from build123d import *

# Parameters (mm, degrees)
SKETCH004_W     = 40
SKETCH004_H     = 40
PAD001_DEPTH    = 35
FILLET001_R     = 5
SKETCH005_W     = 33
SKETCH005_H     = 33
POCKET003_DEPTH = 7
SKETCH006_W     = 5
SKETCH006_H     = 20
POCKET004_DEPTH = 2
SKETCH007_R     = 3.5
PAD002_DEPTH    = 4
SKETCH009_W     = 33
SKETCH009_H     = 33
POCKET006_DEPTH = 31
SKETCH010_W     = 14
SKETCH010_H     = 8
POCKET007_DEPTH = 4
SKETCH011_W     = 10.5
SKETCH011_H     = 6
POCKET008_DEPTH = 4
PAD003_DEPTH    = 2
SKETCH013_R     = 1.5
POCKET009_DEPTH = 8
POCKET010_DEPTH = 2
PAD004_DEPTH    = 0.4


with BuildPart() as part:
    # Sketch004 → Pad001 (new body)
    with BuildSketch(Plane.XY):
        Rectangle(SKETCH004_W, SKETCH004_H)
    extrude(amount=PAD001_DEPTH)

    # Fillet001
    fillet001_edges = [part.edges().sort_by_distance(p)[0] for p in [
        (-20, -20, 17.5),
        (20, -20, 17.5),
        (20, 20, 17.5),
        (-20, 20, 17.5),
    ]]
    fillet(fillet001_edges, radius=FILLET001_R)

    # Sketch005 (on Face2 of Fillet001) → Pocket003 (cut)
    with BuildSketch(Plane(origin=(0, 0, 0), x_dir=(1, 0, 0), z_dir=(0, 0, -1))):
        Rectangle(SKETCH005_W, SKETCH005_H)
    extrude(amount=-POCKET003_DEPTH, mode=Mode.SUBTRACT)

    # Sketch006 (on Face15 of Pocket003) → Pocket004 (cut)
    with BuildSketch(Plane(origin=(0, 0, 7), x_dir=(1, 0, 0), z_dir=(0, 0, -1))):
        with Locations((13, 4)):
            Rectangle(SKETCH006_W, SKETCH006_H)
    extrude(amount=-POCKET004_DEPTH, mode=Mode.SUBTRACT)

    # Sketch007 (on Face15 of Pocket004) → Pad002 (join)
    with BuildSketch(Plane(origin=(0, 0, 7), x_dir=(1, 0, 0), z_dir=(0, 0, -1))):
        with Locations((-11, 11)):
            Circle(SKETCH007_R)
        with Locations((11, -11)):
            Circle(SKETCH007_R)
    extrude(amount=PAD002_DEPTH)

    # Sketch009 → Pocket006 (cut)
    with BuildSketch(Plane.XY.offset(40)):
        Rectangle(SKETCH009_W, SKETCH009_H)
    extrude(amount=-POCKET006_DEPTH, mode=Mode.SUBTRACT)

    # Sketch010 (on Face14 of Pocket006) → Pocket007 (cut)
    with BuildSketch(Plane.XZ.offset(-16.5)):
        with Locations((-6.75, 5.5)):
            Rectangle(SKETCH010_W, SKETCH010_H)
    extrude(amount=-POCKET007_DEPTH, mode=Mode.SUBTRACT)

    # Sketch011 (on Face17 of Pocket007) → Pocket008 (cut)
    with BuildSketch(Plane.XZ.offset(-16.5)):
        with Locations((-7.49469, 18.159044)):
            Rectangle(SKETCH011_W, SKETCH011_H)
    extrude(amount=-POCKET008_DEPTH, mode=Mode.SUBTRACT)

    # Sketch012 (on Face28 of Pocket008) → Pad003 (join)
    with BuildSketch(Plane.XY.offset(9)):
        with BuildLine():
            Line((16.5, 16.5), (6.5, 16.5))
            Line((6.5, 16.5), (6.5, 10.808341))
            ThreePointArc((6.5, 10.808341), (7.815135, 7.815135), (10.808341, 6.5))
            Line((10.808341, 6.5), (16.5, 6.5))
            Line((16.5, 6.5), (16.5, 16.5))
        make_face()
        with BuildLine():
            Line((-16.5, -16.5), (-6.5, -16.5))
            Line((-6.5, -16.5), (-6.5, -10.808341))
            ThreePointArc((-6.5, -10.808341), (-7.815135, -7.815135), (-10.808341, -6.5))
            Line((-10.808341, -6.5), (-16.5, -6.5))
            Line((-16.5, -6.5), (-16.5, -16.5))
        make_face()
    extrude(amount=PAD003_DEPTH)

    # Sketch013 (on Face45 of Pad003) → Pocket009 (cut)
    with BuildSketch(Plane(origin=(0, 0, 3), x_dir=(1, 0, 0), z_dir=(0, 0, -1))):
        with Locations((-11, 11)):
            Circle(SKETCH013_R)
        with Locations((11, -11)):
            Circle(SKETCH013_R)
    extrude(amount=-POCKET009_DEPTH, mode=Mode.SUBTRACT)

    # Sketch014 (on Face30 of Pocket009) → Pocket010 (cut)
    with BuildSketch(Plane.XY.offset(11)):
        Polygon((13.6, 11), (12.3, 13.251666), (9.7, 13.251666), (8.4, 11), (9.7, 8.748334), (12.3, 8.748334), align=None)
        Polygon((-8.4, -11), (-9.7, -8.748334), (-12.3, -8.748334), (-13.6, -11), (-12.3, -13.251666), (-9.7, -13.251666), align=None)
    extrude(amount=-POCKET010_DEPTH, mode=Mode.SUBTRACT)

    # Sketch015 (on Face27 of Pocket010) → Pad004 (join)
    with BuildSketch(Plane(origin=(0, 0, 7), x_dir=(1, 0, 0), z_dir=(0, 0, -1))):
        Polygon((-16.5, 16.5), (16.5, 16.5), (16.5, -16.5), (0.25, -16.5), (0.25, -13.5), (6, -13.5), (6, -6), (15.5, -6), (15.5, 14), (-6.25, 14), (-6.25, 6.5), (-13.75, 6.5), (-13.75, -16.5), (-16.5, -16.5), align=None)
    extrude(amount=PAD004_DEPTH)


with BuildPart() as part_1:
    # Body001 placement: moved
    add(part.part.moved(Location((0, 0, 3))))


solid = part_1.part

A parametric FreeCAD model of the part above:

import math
import FreeCAD as App
import Part
import Sketcher
Q = App.Units.Quantity


def edges_at(feature, points):
    """Names of the edges that pass closest to the given points."""
    edges = feature.Shape.Edges
    near = lambda p: min(range(len(edges)), key=lambda i: edges[i].distToShape(Part.Vertex(*p))[0])
    return sorted({f"Edge{near(p) + 1}" for p in points})

doc = App.newDocument("Part")
body = doc.addObject("PartDesign::Body", "Body")

# Sketch on XY plane
sketch1 = body.newObject("Sketcher::SketchObject", "Sketch")
sketch1.AttachmentSupport = (doc.getObject("XY_Plane"), [""])
sketch1.MapMode = "FlatFace"
sketch1.addGeometry([
    Part.LineSegment(App.Vector(-20, 20, 0), App.Vector(-20, -20, 0)),
    Part.LineSegment(App.Vector(-20, -20, 0), App.Vector(20, -20, 0)),
    Part.LineSegment(App.Vector(20, -20, 0), App.Vector(20, 20, 0)),
    Part.LineSegment(App.Vector(20, 20, 0), App.Vector(-20, 20, 0)),
], False)
sketch1.addConstraint([
    Sketcher.Constraint("Coincident", 0, 2, 1, 1),
    Sketcher.Constraint("Coincident", 1, 2, 2, 1),
    Sketcher.Constraint("Coincident", 2, 2, 3, 1),
    Sketcher.Constraint("Coincident", 3, 2, 0, 1),
    Sketcher.Constraint("Vertical", 0),
    Sketcher.Constraint("Horizontal", 1),
    Sketcher.Constraint("Vertical", 2),
    Sketcher.Constraint("Horizontal", 3),
    Sketcher.Constraint("Symmetric", 0, 2, 2, 2, -1, 1),
    Sketcher.Constraint("Equal", 3, 0),
    Sketcher.Constraint("DistanceX", 1, 1, 1, 2, 40.0),
])
pad1 = body.newObject("PartDesign::Pad", "Pad")
pad1.Profile = sketch1
pad1.Length = 35
doc.recompute()

fillet = body.newObject("PartDesign::Fillet", "Fillet")
fillet.Base = (pad1, edges_at(pad1, [
    (-20, -20, 17.5),
    (20, -20, 17.5),
    (20, 20, 17.5),
    (-20, 20, 17.5),
]))
fillet.Radius = 5

# Sketch on XY plane
sketch2 = body.newObject("Sketcher::SketchObject", "Sketch001")
sketch2.AttachmentSupport = (doc.getObject("XY_Plane"), [""])
sketch2.MapMode = "FlatFace"
sketch2.addGeometry([
    Part.LineSegment(App.Vector(-16.5, -16.5, 0), App.Vector(-16.5, 16.5, 0)),
    Part.LineSegment(App.Vector(-16.5, 16.5, 0), App.Vector(16.5, 16.5, 0)),
    Part.LineSegment(App.Vector(16.5, 16.5, 0), App.Vector(16.5, -16.5, 0)),
    Part.LineSegment(App.Vector(16.5, -16.5, 0), App.Vector(-16.5, -16.5, 0)),
], False)
sketch2.addConstraint([
    Sketcher.Constraint("Coincident", 0, 2, 1, 1),
    Sketcher.Constraint("Coincident", 1, 2, 2, 1),
    Sketcher.Constraint("Coincident", 2, 2, 3, 1),
    Sketcher.Constraint("Coincident", 3, 2, 0, 1),
    Sketcher.Constraint("Vertical", 0),
    Sketcher.Constraint("Horizontal", 1),
    Sketcher.Constraint("Vertical", 2),
    Sketcher.Constraint("Horizontal", 3),
    Sketcher.Constraint("Symmetric", 0, 2, 2, 2, -1, 1),
    Sketcher.Constraint("Equal", 3, 0),
    Sketcher.Constraint("DistanceX", 1, 1, 1, 2, 33.0),
])
pocket1 = body.newObject("PartDesign::Pocket", "Pocket")
pocket1.Profile = sketch2
pocket1.Length = 7
pocket1.Reversed = True

# Sketch on XY plane
sketch3 = body.newObject("Sketcher::SketchObject", "Sketch002")
sketch3.AttachmentSupport = (doc.getObject("XY_Plane"), [""])
sketch3.MapMode = "FlatFace"
sketch3.AttachmentOffset = App.Placement(App.Vector(0, 0, 7), App.Rotation())
sketch3.addGeometry([
    Part.LineSegment(App.Vector(10.5, -14, 0), App.Vector(10.5, 6, 0)),
    Part.LineSegment(App.Vector(10.5, 6, 0), App.Vector(15.5, 6, 0)),
    Part.LineSegment(App.Vector(15.5, 6, 0), App.Vector(15.5, -14, 0)),
    Part.LineSegment(App.Vector(15.5, -14, 0), App.Vector(10.5, -14, 0)),
], False)
sketch3.addConstraint([
    Sketcher.Constraint("Coincident", 0, 2, 1, 1),
    Sketcher.Constraint("Coincident", 1, 2, 2, 1),
    Sketcher.Constraint("Coincident", 2, 2, 3, 1),
    Sketcher.Constraint("Coincident", 3, 2, 0, 1),
    Sketcher.Constraint("Vertical", 0),
    Sketcher.Constraint("Horizontal", 1),
    Sketcher.Constraint("Vertical", 2),
    Sketcher.Constraint("Horizontal", 3),
    Sketcher.Constraint("DistanceX", 1, 1, 1, 2, 5.0),
    Sketcher.Constraint("DistanceY", 0, 1, 0, 2, 20.0),
    Sketcher.Constraint("DistanceY", -1, 1, 0, 2, 6.0),
    Sketcher.Constraint("DistanceX", -1, 1, 0, 2, 10.5),
])
pocket2 = body.newObject("PartDesign::Pocket", "Pocket001")
pocket2.Profile = sketch3
pocket2.Length = 2
pocket2.Reversed = True

# Sketch on XY plane
sketch4 = body.newObject("Sketcher::SketchObject", "Sketch003")
sketch4.AttachmentSupport = (doc.getObject("XY_Plane"), [""])
sketch4.MapMode = "FlatFace"
sketch4.AttachmentOffset = App.Placement(App.Vector(0, 0, 7), App.Rotation())
sketch4.addGeometry([
    Part.Circle(App.Vector(-11, -11, 0), App.Vector(0, 0, 1), 3.5),
    Part.Circle(App.Vector(11, 11, 0), App.Vector(0, 0, 1), 3.5),
], False)
sketch4.addConstraint([
    Sketcher.Constraint("Equal", 0, 1),
    Sketcher.Constraint("Symmetric", 0, 3, 1, 3, -1, 1),
    Sketcher.Constraint("Diameter", 0, 7.0),
    Sketcher.Constraint("DistanceX", 0, 3, -1, 1, 11.0),
    Sketcher.Constraint("DistanceY", 0, 3, -1, 1, 11.0),
])
pad2 = body.newObject("PartDesign::Pad", "Pad001")
pad2.Profile = sketch4
pad2.Length = 4
pad2.Reversed = True

# Sketch on XY plane
sketch5 = body.newObject("Sketcher::SketchObject", "Sketch004")
sketch5.AttachmentSupport = (doc.getObject("XY_Plane"), [""])
sketch5.MapMode = "FlatFace"
sketch5.AttachmentOffset = App.Placement(App.Vector(0, 0, 40), App.Rotation())
sketch5.addGeometry([
    Part.LineSegment(App.Vector(-16.5, 16.5, 0), App.Vector(-16.5, -16.5, 0)),
    Part.LineSegment(App.Vector(-16.5, -16.5, 0), App.Vector(16.5, -16.5, 0)),
    Part.LineSegment(App.Vector(16.5, -16.5, 0), App.Vector(16.5, 16.5, 0)),
    Part.LineSegment(App.Vector(16.5, 16.5, 0), App.Vector(-16.5, 16.5, 0)),
], False)
sketch5.addConstraint([
    Sketcher.Constraint("Coincident", 0, 2, 1, 1),
    Sketcher.Constraint("Coincident", 1, 2, 2, 1),
    Sketcher.Constraint("Coincident", 2, 2, 3, 1),
    Sketcher.Constraint("Coincident", 3, 2, 0, 1),
    Sketcher.Constraint("Vertical", 0),
    Sketcher.Constraint("Horizontal", 1),
    Sketcher.Constraint("Vertical", 2),
    Sketcher.Constraint("Horizontal", 3),
    Sketcher.Constraint("Symmetric", 0, 2, 2, 2, -1, 1),
    Sketcher.Constraint("Equal", 3, 0),
    Sketcher.Constraint("DistanceX", 1, 1, 1, 2, 33.0),
])
pocket3 = body.newObject("PartDesign::Pocket", "Pocket002")
pocket3.Profile = sketch5
pocket3.Length = 31

# Sketch on XZ plane
sketch6 = body.newObject("Sketcher::SketchObject", "Sketch005")
sketch6.AttachmentSupport = (doc.getObject("XZ_Plane"), [""])
sketch6.MapMode = "FlatFace"
sketch6.AttachmentOffset = App.Placement(App.Vector(0, 0, -16.5), App.Rotation())
sketch6.addGeometry([
    Part.LineSegment(App.Vector(-13.75, 9.5, 0), App.Vector(-13.75, 1.5, 0)),
    Part.LineSegment(App.Vector(-13.75, 1.5, 0), App.Vector(0.25, 1.5, 0)),
    Part.LineSegment(App.Vector(0.25, 1.5, 0), App.Vector(0.25, 9.5, 0)),
    Part.LineSegment(App.Vector(0.25, 9.5, 0), App.Vector(-13.75, 9.5, 0)),
], False)
sketch6.addConstraint([
    Sketcher.Constraint("Coincident", 0, 2, 1, 1),
    Sketcher.Constraint("Coincident", 1, 2, 2, 1),
    Sketcher.Constraint("Coincident", 2, 2, 3, 1),
    Sketcher.Constraint("Coincident", 3, 2, 0, 1),
    Sketcher.Constraint("Vertical", 0),
    Sketcher.Constraint("Horizontal", 1),
    Sketcher.Constraint("Vertical", 2),
    Sketcher.Constraint("Horizontal", 3),
    Sketcher.Constraint("DistanceX", 1, 1, 1, 2, 14.0),
    Sketcher.Constraint("DistanceY", 0, 2, 0, 1, 8.0),
    Sketcher.Constraint("DistanceY", -1, 1, 0, 2, 1.5),
    Sketcher.Constraint("DistanceX", 0, 2, -1, 1, 13.75),
])
pocket4 = body.newObject("PartDesign::Pocket", "Pocket003")
pocket4.Profile = sketch6
pocket4.Length = 4

# Sketch on XZ plane
sketch7 = body.newObject("Sketcher::SketchObject", "Sketch006")
sketch7.AttachmentSupport = (doc.getObject("XZ_Plane"), [""])
sketch7.MapMode = "FlatFace"
sketch7.AttachmentOffset = App.Placement(App.Vector(0, 0, -16.5), App.Rotation())
sketch7.addGeometry([
    Part.LineSegment(App.Vector(-12.74469, 21.159044, 0), App.Vector(-12.74469, 15.159044, 0)),
    Part.LineSegment(App.Vector(-12.74469, 15.159044, 0), App.Vector(-2.24469, 15.159044, 0)),
    Part.LineSegment(App.Vector(-2.24469, 15.159044, 0), App.Vector(-2.24469, 21.159044, 0)),
    Part.LineSegment(App.Vector(-2.24469, 21.159044, 0), App.Vector(-12.74469, 21.159044, 0)),
], False)
sketch7.addConstraint([
    Sketcher.Constraint("Coincident", 0, 2, 1, 1),
    Sketcher.Constraint("Coincident", 1, 2, 2, 1),
    Sketcher.Constraint("Coincident", 2, 2, 3, 1),
    Sketcher.Constraint("Coincident", 3, 2, 0, 1),
    Sketcher.Constraint("Vertical", 0),
    Sketcher.Constraint("Horizontal", 1),
    Sketcher.Constraint("Vertical", 2),
    Sketcher.Constraint("Horizontal", 3),
    Sketcher.Constraint("DistanceY", 0, 2, 0, 1, 6.0),
    Sketcher.Constraint("DistanceX", 1, 1, 1, 2, 10.5),
    Sketcher.Constraint("DistanceX", 0, 2, -1, 1, 12.74469),
    Sketcher.Constraint("DistanceY", -1, 1, 0, 2, 15.159044),
])
pocket5 = body.newObject("PartDesign::Pocket", "Pocket004")
pocket5.Profile = sketch7
pocket5.Length = 4

# Sketch on XY plane
sketch8 = body.newObject("Sketcher::SketchObject", "Sketch007")
sketch8.AttachmentSupport = (doc.getObject("XY_Plane"), [""])
sketch8.MapMode = "FlatFace"
sketch8.AttachmentOffset = App.Placement(App.Vector(0, 0, 9), App.Rotation())
sketch8.addGeometry([
    Part.LineSegment(App.Vector(16.5, 16.5, 0), App.Vector(6.5, 16.5, 0)),  # 0
    Part.LineSegment(App.Vector(6.5, 16.5, 0), App.Vector(6.5, 10.808341, 0)),  # 1
    Part.ArcOfCircle(Part.Circle(App.Vector(11.000001, 11.000001, 0), App.Vector(0, 0, 1), 4.504081), math.radians(-177.561185), math.radians(-92.438815)),  # 2
    Part.LineSegment(App.Vector(10.808341, 6.5, 0), App.Vector(16.5, 6.5, 0)),  # 3
    Part.LineSegment(App.Vector(16.5, 6.5, 0), App.Vector(16.5, 16.5, 0)),  # 4
    Part.LineSegment(App.Vector(-16.5, -16.5, 0), App.Vector(-6.5, -16.5, 0)),  # 5
    Part.LineSegment(App.Vector(-6.5, -16.5, 0), App.Vector(-6.5, -10.808341, 0)),  # 6
    Part.ArcOfCircle(Part.Circle(App.Vector(-11.000001, -11.000001, 0), App.Vector(0, 0, 1), 4.504081), math.radians(2.438815), math.radians(87.561185)),  # 7
    Part.LineSegment(App.Vector(-10.808341, -6.5, 0), App.Vector(-16.5, -6.5, 0)),  # 8
    Part.LineSegment(App.Vector(-16.5, -6.5, 0), App.Vector(-16.5, -16.5, 0)),  # 9
], False)
sketch8.addConstraint([
    Sketcher.Constraint("Coincident", 0, 2, 1, 1),
    Sketcher.Constraint("Coincident", 1, 2, 2, 1),
    Sketcher.Constraint("Coincident", 2, 2, 3, 1),
    Sketcher.Constraint("Coincident", 3, 2, 4, 1),
    Sketcher.Constraint("Coincident", 4, 2, 0, 1),
    Sketcher.Constraint("Coincident", 5, 2, 6, 1),
    Sketcher.Constraint("Coincident", 6, 2, 7, 1),
    Sketcher.Constraint("Coincident", 7, 2, 8, 1),
    Sketcher.Constraint("Coincident", 8, 2, 9, 1),
    Sketcher.Constraint("Coincident", 9, 2, 5, 1),
    Sketcher.Constraint("Horizontal", 0),
    Sketcher.Constraint("Vertical", 1),
    Sketcher.Constraint("Horizontal", 3),
    Sketcher.Constraint("Vertical", 4),
    Sketcher.Constraint("Horizontal", 5),
    Sketcher.Constraint("Vertical", 6),
    Sketcher.Constraint("Horizontal", 8),
    Sketcher.Constraint("Vertical", 9),
    Sketcher.Constraint("Equal", 2, 7),
    Sketcher.Constraint("Symmetric", 2, 3, 7, 3, -1, 1),
    Sketcher.Constraint("Symmetric", 0, 2, 5, 2, -1, 1),
    Sketcher.Constraint("Symmetric", 3, 2, 8, 2, -1, 1),
    Sketcher.Constraint("Equal", 8, 1),
    Sketcher.Constraint("Equal", 5, 4),
    Sketcher.Constraint("DistanceX", 0, 2, 0, 1, 10.0),
    Sketcher.Constraint("DistanceX", -1, 1, 2, 3, 11.000001),
    Sketcher.Constraint("DistanceY", -1, 1, 2, 3, 11.000001),
    Sketcher.Constraint("DistanceY", 5, 2, 2, 2, 23.0),
    Sketcher.Constraint("Radius", 2, 4.504081),
])
pad3 = body.newObject("PartDesign::Pad", "Pad002")
pad3.Profile = sketch8
pad3.Length = 2

# Sketch on XY plane
sketch9 = body.newObject("Sketcher::SketchObject", "Sketch008")
sketch9.AttachmentSupport = (doc.getObject("XY_Plane"), [""])
sketch9.MapMode = "FlatFace"
sketch9.AttachmentOffset = App.Placement(App.Vector(0, 0, 3), App.Rotation())
sketch9.addGeometry([
    Part.Circle(App.Vector(-11, -11, 0), App.Vector(0, 0, 1), 1.5),
    Part.Circle(App.Vector(11, 11, 0), App.Vector(0, 0, 1), 1.5),
], False)
sketch9.addConstraint([
    Sketcher.Constraint("Equal", 0, 1),
    Sketcher.Constraint("Symmetric", 0, 3, 1, 3, -1, 1),
    Sketcher.Constraint("Diameter", 0, 3.0),
    Sketcher.Constraint("DistanceX", 0, 3, -1, 1, 11.0),
    Sketcher.Constraint("DistanceY", 0, 3, -1, 1, 11.0),
])
pocket6 = body.newObject("PartDesign::Pocket", "Pocket005")
pocket6.Profile = sketch9
pocket6.Length = 8
pocket6.Reversed = True

# Sketch on XY plane
sketch10 = body.newObject("Sketcher::SketchObject", "Sketch009")
sketch10.AttachmentSupport = (doc.getObject("XY_Plane"), [""])
sketch10.MapMode = "FlatFace"
sketch10.AttachmentOffset = App.Placement(App.Vector(0, 0, 11), App.Rotation())
sketch10.addGeometry([
    Part.LineSegment(App.Vector(13.6, 11, 0), App.Vector(12.3, 13.251666, 0)),  # 0
    Part.LineSegment(App.Vector(12.3, 13.251666, 0), App.Vector(9.7, 13.251666, 0)),  # 1
    Part.LineSegment(App.Vector(9.7, 13.251666, 0), App.Vector(8.4, 11, 0)),  # 2
    Part.LineSegment(App.Vector(8.4, 11, 0), App.Vector(9.7, 8.748334, 0)),  # 3
    Part.LineSegment(App.Vector(9.7, 8.748334, 0), App.Vector(12.3, 8.748334, 0)),  # 4
    Part.LineSegment(App.Vector(12.3, 8.748334, 0), App.Vector(13.6, 11, 0)),  # 5
    Part.LineSegment(App.Vector(-8.4, -11, 0), App.Vector(-9.7, -8.748334, 0)),  # 6
    Part.LineSegment(App.Vector(-9.7, -8.748334, 0), App.Vector(-12.3, -8.748334, 0)),  # 7
    Part.LineSegment(App.Vector(-12.3, -8.748334, 0), App.Vector(-13.6, -11, 0)),  # 8
    Part.LineSegment(App.Vector(-13.6, -11, 0), App.Vector(-12.3, -13.251666, 0)),  # 9
    Part.LineSegment(App.Vector(-12.3, -13.251666, 0), App.Vector(-9.7, -13.251666, 0)),  # 10
    Part.LineSegment(App.Vector(-9.7, -13.251666, 0), App.Vector(-8.4, -11, 0)),  # 11
], False)
sketch10.addConstraint([
    Sketcher.Constraint("Coincident", 0, 2, 1, 1),
    Sketcher.Constraint("Coincident", 1, 2, 2, 1),
    Sketcher.Constraint("Coincident", 2, 2, 3, 1),
    Sketcher.Constraint("Coincident", 3, 2, 4, 1),
    Sketcher.Constraint("Coincident", 4, 2, 5, 1),
    Sketcher.Constraint("Coincident", 5, 2, 0, 1),
    Sketcher.Constraint("Coincident", 6, 2, 7, 1),
    Sketcher.Constraint("Coincident", 7, 2, 8, 1),
    Sketcher.Constraint("Coincident", 8, 2, 9, 1),
    Sketcher.Constraint("Coincident", 9, 2, 10, 1),
    Sketcher.Constraint("Coincident", 10, 2, 11, 1),
    Sketcher.Constraint("Coincident", 11, 2, 6, 1),
    Sketcher.Constraint("Horizontal", 1),
    Sketcher.Constraint("Horizontal", 4),
    Sketcher.Constraint("Horizontal", 7),
    Sketcher.Constraint("Horizontal", 10),
    Sketcher.Constraint("Symmetric", 3, 2, 6, 2, -1, 1),
    Sketcher.Constraint("Symmetric", 5, 2, 8, 2, -1, 1),
    Sketcher.Constraint("Symmetric", 0, 2, 9, 2, -1, 1),
    Sketcher.Constraint("Symmetric", 2, 2, 11, 2, -1, 1),
    Sketcher.Constraint("Parallel", 0, 3),
    Sketcher.Constraint("Parallel", 2, 5),
    Sketcher.Constraint("Parallel", 5, 8),
    Sketcher.Constraint("Parallel", 8, 11),
    Sketcher.Constraint("Horizontal", 2, 2, 5, 2),
    Sketcher.Constraint("Vertical", 1, 2, 3, 2),
    Sketcher.Constraint("Vertical", 0, 2, 4, 2),
    Sketcher.Constraint("Angle", 0, Q("120.000001 deg")),
    Sketcher.Constraint("DistanceX", 1, 2, 1, 1, 2.6),
    Sketcher.Constraint("DistanceY", -1, 1, 2, 2, 11.0),
    Sketcher.Constraint("DistanceX", 6, 2, 4, 2, 22.0),
    Sketcher.Constraint("Distance", 0, 2.6),
])
pocket7 = body.newObject("PartDesign::Pocket", "Pocket006")
pocket7.Profile = sketch10
pocket7.Length = 2

# Sketch on XY plane
sketch11 = body.newObject("Sketcher::SketchObject", "Sketch010")
sketch11.AttachmentSupport = (doc.getObject("XY_Plane"), [""])
sketch11.MapMode = "FlatFace"
sketch11.AttachmentOffset = App.Placement(App.Vector(0, 0, 7), App.Rotation())
sketch11.addGeometry([
    Part.LineSegment(App.Vector(16.5, -16.5, 0), App.Vector(-16.5, -16.5, 0)),  # 0
    Part.LineSegment(App.Vector(-16.5, -16.5, 0), App.Vector(-16.5, 16.5, 0)),  # 1
    Part.LineSegment(App.Vector(-16.5, 16.5, 0), App.Vector(-13.75, 16.5, 0)),  # 2
    Part.LineSegment(App.Vector(-13.75, 16.5, 0), App.Vector(-13.75, -6.5, 0)),  # 3
    Part.LineSegment(App.Vector(-13.75, -6.5, 0), App.Vector(-6.25, -6.5, 0)),  # 4
    Part.LineSegment(App.Vector(-6.25, -6.5, 0), App.Vector(-6.25, -14, 0)),  # 5
    Part.LineSegment(App.Vector(-6.25, -14, 0), App.Vector(15.5, -14, 0)),  # 6
    Part.LineSegment(App.Vector(15.5, -14, 0), App.Vector(15.5, 6, 0)),  # 7
    Part.LineSegment(App.Vector(15.5, 6, 0), App.Vector(6, 6, 0)),  # 8
    Part.LineSegment(App.Vector(6, 6, 0), App.Vector(6, 13.5, 0)),  # 9
    Part.LineSegment(App.Vector(6, 13.5, 0), App.Vector(0.25, 13.5, 0)),  # 10
    Part.LineSegment(App.Vector(0.25, 13.5, 0), App.Vector(0.25, 16.5, 0)),  # 11
    Part.LineSegment(App.Vector(0.25, 16.5, 0), App.Vector(16.5, 16.5, 0)),  # 12
    Part.LineSegment(App.Vector(16.5, 16.5, 0), App.Vector(16.5, -16.5, 0)),  # 13
], False)
sketch11.addConstraint([
    Sketcher.Constraint("Coincident", 0, 2, 1, 1),
    Sketcher.Constraint("Coincident", 1, 2, 2, 1),
    Sketcher.Constraint("Coincident", 2, 2, 3, 1),
    Sketcher.Constraint("Coincident", 3, 2, 4, 1),
    Sketcher.Constraint("Coincident", 4, 2, 5, 1),
    Sketcher.Constraint("Coincident", 5, 2, 6, 1),
    Sketcher.Constraint("Coincident", 6, 2, 7, 1),
    Sketcher.Constraint("Coincident", 7, 2, 8, 1),
    Sketcher.Constraint("Coincident", 8, 2, 9, 1),
    Sketcher.Constraint("Coincident", 9, 2, 10, 1),
    Sketcher.Constraint("Coincident", 10, 2, 11, 1),
    Sketcher.Constraint("Coincident", 11, 2, 12, 1),
    Sketcher.Constraint("Coincident", 12, 2, 13, 1),
    Sketcher.Constraint("Coincident", 13, 2, 0, 1),
    Sketcher.Constraint("Horizontal", 0),
    Sketcher.Constraint("Vertical", 1),
    Sketcher.Constraint("Horizontal", 2),
    Sketcher.Constraint("Vertical", 3),
    Sketcher.Constraint("Horizontal", 4),
    Sketcher.Constraint("Vertical", 5),
    Sketcher.Constraint("Horizontal", 6),
    Sketcher.Constraint("Vertical", 7),
    Sketcher.Constraint("Horizontal", 8),
    Sketcher.Constraint("Vertical", 9),
    Sketcher.Constraint("Horizontal", 10),
    Sketcher.Constraint("Vertical", 11),
    Sketcher.Constraint("Horizontal", 12),
    Sketcher.Constraint("Vertical", 13),
    Sketcher.Constraint("Symmetric", 0, 2, 12, 2, -1, 1),
    Sketcher.Constraint("Horizontal", 2, 2, 11, 2),
    Sketcher.Constraint("Equal", 0, 1),
    Sketcher.Constraint("Equal", 4, 5),
    Sketcher.Constraint("Equal", 5, 9),
    Sketcher.Constraint("DistanceX", 0, 2, 0, 1, 33.0),
    Sketcher.Constraint("DistanceY", 3, 2, 3, 1, 23.0),
    Sketcher.Constraint("DistanceY", 7, 1, 7, 2, 20.0),
    Sketcher.Constraint("DistanceX", 4, 1, 4, 2, 7.5),
    Sketcher.Constraint("DistanceX", 8, 2, 8, 1, 9.5),
    Sketcher.Constraint("DistanceX", -1, 1, 8, 2, 6.0),
    Sketcher.Constraint("DistanceX", 2, 2, 10, 2, 14.0),
    Sketcher.Constraint("DistanceX", 2, 1, 2, 2, 2.75),
])
pad4 = body.newObject("PartDesign::Pad", "Pad003")
pad4.Profile = sketch11
pad4.Length = 0.4
pad4.Reversed = True
body2 = doc.addObject("PartDesign::Body", "Body001")
doc.recompute()

body.Placement = App.Placement(App.Vector(0, 0, 3), App.Rotation(App.Vector(0, 0, 1), 0))
boolean = body2.newObject("PartDesign::Boolean", "Boolean")
boolean.Type = "Fuse"
boolean.addObjects([body])

doc.recompute()
